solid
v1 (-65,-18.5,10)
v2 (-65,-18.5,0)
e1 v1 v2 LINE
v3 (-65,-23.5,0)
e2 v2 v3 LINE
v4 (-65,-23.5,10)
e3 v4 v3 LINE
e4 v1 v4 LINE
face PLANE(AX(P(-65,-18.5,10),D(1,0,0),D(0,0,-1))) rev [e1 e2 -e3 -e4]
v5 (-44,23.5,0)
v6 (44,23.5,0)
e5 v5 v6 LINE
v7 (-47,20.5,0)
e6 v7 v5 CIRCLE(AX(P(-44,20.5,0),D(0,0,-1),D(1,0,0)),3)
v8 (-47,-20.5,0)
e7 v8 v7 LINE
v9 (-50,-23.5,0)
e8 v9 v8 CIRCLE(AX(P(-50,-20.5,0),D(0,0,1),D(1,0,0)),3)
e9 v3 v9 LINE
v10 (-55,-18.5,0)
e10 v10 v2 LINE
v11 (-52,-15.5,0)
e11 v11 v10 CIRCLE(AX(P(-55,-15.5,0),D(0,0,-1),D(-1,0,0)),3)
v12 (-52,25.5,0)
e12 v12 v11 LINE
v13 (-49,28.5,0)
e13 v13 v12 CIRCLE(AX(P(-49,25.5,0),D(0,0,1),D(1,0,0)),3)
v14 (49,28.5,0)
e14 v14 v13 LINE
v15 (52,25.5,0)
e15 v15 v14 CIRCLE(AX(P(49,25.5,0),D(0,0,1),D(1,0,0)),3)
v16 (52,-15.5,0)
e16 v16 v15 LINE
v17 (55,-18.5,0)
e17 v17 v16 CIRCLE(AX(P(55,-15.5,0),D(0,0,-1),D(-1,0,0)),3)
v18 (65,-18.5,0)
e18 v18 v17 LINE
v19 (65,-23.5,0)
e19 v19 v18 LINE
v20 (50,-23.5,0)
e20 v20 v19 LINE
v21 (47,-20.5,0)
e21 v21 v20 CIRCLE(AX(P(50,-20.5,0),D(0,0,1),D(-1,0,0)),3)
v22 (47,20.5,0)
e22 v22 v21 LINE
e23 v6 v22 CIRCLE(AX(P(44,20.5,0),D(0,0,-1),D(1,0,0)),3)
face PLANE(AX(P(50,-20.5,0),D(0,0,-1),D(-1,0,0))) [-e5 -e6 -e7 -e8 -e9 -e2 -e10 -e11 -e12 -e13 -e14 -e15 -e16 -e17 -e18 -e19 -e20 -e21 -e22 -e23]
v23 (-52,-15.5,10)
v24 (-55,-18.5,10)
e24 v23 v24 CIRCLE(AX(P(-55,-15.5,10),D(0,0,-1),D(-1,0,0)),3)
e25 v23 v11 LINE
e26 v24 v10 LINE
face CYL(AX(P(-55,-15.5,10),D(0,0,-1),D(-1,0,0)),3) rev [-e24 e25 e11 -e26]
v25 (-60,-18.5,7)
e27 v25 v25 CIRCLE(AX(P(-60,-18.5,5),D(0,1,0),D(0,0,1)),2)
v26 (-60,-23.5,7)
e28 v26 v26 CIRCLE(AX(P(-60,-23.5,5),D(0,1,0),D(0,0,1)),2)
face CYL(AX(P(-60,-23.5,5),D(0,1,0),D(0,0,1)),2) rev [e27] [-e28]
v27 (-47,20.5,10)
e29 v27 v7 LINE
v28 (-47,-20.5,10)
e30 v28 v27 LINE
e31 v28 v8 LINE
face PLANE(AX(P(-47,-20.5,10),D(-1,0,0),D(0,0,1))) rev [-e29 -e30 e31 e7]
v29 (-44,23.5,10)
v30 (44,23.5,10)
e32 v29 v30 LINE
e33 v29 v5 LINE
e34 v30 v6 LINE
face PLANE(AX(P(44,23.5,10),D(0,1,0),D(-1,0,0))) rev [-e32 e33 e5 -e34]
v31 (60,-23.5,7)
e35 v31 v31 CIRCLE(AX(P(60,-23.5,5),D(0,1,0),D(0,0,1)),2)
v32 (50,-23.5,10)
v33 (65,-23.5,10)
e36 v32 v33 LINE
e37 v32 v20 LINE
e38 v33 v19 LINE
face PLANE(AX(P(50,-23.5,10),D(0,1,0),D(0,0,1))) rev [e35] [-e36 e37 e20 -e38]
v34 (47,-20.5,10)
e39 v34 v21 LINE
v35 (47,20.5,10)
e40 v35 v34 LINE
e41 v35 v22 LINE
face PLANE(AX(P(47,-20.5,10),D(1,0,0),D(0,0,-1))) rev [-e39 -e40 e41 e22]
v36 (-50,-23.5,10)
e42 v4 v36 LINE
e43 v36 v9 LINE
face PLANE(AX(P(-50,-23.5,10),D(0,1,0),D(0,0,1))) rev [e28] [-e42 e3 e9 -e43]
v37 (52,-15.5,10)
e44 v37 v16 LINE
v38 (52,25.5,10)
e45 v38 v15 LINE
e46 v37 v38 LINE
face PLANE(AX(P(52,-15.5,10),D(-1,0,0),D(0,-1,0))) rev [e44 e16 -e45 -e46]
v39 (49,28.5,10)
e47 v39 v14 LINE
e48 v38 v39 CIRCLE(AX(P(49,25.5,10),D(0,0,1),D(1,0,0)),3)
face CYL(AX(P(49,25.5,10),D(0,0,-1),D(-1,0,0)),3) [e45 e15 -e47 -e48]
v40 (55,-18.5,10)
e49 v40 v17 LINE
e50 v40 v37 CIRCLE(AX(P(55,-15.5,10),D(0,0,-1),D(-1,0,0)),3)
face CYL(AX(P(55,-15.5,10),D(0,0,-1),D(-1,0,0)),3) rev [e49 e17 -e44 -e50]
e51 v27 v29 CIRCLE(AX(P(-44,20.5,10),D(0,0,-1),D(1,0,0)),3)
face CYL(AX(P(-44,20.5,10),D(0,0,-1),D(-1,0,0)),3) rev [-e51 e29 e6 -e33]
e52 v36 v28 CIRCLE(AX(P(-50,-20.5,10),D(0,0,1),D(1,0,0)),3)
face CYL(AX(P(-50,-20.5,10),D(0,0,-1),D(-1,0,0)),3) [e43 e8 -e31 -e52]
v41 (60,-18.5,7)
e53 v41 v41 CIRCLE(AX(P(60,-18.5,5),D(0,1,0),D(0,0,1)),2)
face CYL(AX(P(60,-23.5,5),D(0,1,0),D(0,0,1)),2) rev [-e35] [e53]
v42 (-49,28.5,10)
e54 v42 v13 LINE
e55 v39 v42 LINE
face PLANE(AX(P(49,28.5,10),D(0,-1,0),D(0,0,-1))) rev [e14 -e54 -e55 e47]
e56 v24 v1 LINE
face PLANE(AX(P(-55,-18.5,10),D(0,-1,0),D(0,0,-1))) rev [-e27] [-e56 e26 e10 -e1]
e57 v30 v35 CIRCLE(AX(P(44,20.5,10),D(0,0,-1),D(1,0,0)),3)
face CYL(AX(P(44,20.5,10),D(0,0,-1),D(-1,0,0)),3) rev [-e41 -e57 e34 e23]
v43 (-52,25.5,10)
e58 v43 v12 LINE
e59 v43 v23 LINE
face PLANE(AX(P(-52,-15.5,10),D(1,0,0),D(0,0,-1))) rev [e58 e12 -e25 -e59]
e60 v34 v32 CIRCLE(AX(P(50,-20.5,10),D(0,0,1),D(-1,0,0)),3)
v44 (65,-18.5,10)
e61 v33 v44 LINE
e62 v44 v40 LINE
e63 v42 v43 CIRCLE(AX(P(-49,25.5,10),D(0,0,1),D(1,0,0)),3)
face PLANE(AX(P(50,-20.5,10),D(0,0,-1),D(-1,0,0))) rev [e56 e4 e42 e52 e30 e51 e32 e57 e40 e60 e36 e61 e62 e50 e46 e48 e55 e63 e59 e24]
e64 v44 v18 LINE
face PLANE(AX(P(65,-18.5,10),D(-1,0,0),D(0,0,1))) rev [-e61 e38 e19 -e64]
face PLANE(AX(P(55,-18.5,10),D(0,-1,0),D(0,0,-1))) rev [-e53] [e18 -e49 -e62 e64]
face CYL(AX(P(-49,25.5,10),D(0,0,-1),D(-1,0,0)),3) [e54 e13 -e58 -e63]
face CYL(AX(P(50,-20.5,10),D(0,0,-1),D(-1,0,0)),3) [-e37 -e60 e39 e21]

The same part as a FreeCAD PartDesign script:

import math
import FreeCAD as App
import Part
import Sketcher
from FreeCAD import Vector
Q = App.Units.Quantity

doc = App.newDocument("Part")
params = doc.addObject("Spreadsheet::Sheet", "Params")
for row, (alias, value) in enumerate([
    ("sketch1_radius", "3 mm"),
    ("sketch1_width", "98 mm"),
    ("sketch1_width2", "10 mm"),
    ("sketch1_width3", "15 mm"),
    ("sketch1_height", "41 mm"),
    ("pad1_length", "10 mm"),
    ("sketch2_diameter", "4 mm"),
], start=1):
    params.set(f"A{row}", alias)
    params.set(f"B{row}", "=" + value)
    params.setAlias(f"B{row}", alias)

body = doc.addObject("PartDesign::Body", "Body")

# Sketch on XY plane
sketch1 = body.newObject("Sketcher::SketchObject", "Sketch")
sketch1.AttachmentSupport = (doc.getObject("XY_Plane"), [""])
sketch1.MapMode = "FlatFace"
sketch1.addGeometry([
    Part.LineSegment(Vector(52, -15.5, 0), Vector(52, 25.5, 0)),  # 0
    Part.ArcOfCircle(Part.Circle(Vector(49, 25.5, 0), Vector(0, 0, 1), 3), math.radians(0), math.radians(90)),  # 1
    Part.LineSegment(Vector(49, 28.5, 0), Vector(-49, 28.5, 0)),  # 2
    Part.ArcOfCircle(Part.Circle(Vector(-49, 25.5, 0), Vector(0, 0, 1), 3), math.radians(90), math.radians(180)),  # 3
    Part.LineSegment(Vector(-52, 25.5, 0), Vector(-52, -15.5, 0)),  # 4
    Part.ArcOfCircle(Part.Circle(Vector(-55, -15.5, 0), Vector(0, 0, 1), 3), math.radians(-90), math.radians(0)),  # 5
    Part.LineSegment(Vector(-55, -18.5, 0), Vector(-65, -18.5, 0)),  # 6
    Part.LineSegment(Vector(-65, -18.5, 0), Vector(-65, -23.5, 0)),  # 7
    Part.LineSegment(Vector(-65, -23.5, 0), Vector(-50, -23.5, 0)),  # 8
    Part.ArcOfCircle(Part.Circle(Vector(-50, -20.5, 0), Vector(0, 0, 1), 3), math.radians(-90), math.radians(0)),  # 9
    Part.LineSegment(Vector(-47, -20.5, 0), Vector(-47, 20.5, 0)),  # 10
    Part.ArcOfCircle(Part.Circle(Vector(-44, 20.5, 0), Vector(0, 0, 1), 3), math.radians(90), math.radians(180)),  # 11
    Part.LineSegment(Vector(-44, 23.5, 0), Vector(44, 23.5, 0)),  # 12
    Part.ArcOfCircle(Part.Circle(Vector(44, 20.5, 0), Vector(0, 0, 1), 3), math.radians(0), math.radians(90)),  # 13
    Part.LineSegment(Vector(47, 20.5, 0), Vector(47, -20.5, 0)),  # 14
    Part.ArcOfCircle(Part.Circle(Vector(50, -20.5, 0), Vector(0, 0, 1), 3), math.radians(180), math.radians(270)),  # 15
    Part.LineSegment(Vector(50, -23.5, 0), Vector(65, -23.5, 0)),  # 16
    Part.LineSegment(Vector(65, -23.5, 0), Vector(65, -18.5, 0)),  # 17
    Part.LineSegment(Vector(65, -18.5, 0), Vector(55, -18.5, 0)),  # 18
    Part.ArcOfCircle(Part.Circle(Vector(55, -15.5, 0), Vector(0, 0, 1), 3), math.radians(180), math.radians(270)),  # 19
], False)
sketch1.addConstraint([
    Sketcher.Constraint("Tangent", 0, 2, 1, 1),
    Sketcher.Constraint("Tangent", 1, 2, 2, 1),
    Sketcher.Constraint("Tangent", 2, 2, 3, 1),
    Sketcher.Constraint("Tangent", 3, 2, 4, 1),
    Sketcher.Constraint("Tangent", 4, 2, 5, 2),
    Sketcher.Constraint("Tangent", 5, 1, 6, 1),
    Sketcher.Constraint("Coincident", 6, 2, 7, 1),
    Sketcher.Constraint("Coincident", 7, 2, 8, 1),
    Sketcher.Constraint("Tangent", 8, 2, 9, 1),
    Sketcher.Constraint("Tangent", 9, 2, 10, 1),
    Sketcher.Constraint("Tangent", 10, 2, 11, 2),
    Sketcher.Constraint("Tangent", 11, 1, 12, 1),
    Sketcher.Constraint("Tangent", 12, 2, 13, 2),
    Sketcher.Constraint("Tangent", 13, 1, 14, 1),
    Sketcher.Constraint("Tangent", 14, 2, 15, 1),
    Sketcher.Constraint("Tangent", 15, 2, 16, 1),
    Sketcher.Constraint("Coincident", 16, 2, 17, 1),
    Sketcher.Constraint("Coincident", 17, 2, 18, 1),
    Sketcher.Constraint("Tangent", 18, 2, 19, 2),
    Sketcher.Constraint("Tangent", 19, 1, 0, 1),
    Sketcher.Constraint("Vertical", 0),
    Sketcher.Constraint("Horizontal", 2),
    Sketcher.Constraint("Vertical", 4),
    Sketcher.Constraint("Horizontal", 6),
    Sketcher.Constraint("Vertical", 7),
    Sketcher.Constraint("Horizontal", 8),
    Sketcher.Constraint("Vertical", 10),
    Sketcher.Constraint("Horizontal", 12),
    Sketcher.Constraint("Vertical", 14),
    Sketcher.Constraint("Horizontal", 16),
    Sketcher.Constraint("Vertical", 17),
    Sketcher.Constraint("Horizontal", 18),
    Sketcher.Constraint("Equal", 1, 3),
    Sketcher.Constraint("Equal", 3, 5),
    Sketcher.Constraint("Equal", 5, 9),
    Sketcher.Constraint("Equal", 9, 11),
    Sketcher.Constraint("Equal", 11, 13),
    Sketcher.Constraint("Equal", 13, 15),
    Sketcher.Constraint("Equal", 15, 19),
    Sketcher.Constraint("Symmetric", 9, 2, 13, 1, -1, 1),
    Sketcher.Constraint("Symmetric", 5, 3, 19, 3, -2),
    Sketcher.Constraint("Symmetric", 7, 2, 16, 2, -2),
    Sketcher.Constraint("Equal", 4, 10),
    Sketcher.Constraint("Radius", 1, Q("3 mm")),
    Sketcher.Constraint("DistanceX", 2, 2, 2, 1, Q("98 mm")),
    Sketcher.Constraint("DistanceX", 6, 2, 6, 1, Q("10 mm")),
    Sketcher.Constraint("DistanceX", 8, 1, 8, 2, Q("15 mm")),
    Sketcher.Constraint("DistanceY", 0, 1, 0, 2, Q("41 mm")),
    Sketcher.Constraint("DistanceY", 7, 2, 7, 1, Q("5 mm")),
])
sketch1.setExpression("Constraints[43]", "Params.sketch1_radius")
sketch1.setExpression("Constraints[44]", "Params.sketch1_width")
sketch1.setExpression("Constraints[45]", "Params.sketch1_width2")
sketch1.setExpression("Constraints[46]", "Params.sketch1_width3")
sketch1.setExpression("Constraints[47]", "Params.sketch1_height")
pad1 = body.newObject("PartDesign::Pad", "Pad")
pad1.Profile = sketch1
pad1.setExpression("Length", "Params.pad1_length")

# Sketch on XZ plane
sketch2 = body.newObject("Sketcher::SketchObject", "Sketch001")
sketch2.AttachmentSupport = (doc.getObject("XZ_Plane"), [""])
sketch2.MapMode = "FlatFace"
sketch2.AttachmentOffset = App.Placement(Vector(0, 0, 18.5), App.Rotation())
sketch2.addGeometry([
    Part.Circle(Vector(-60, 5, 0), Vector(0, 0, 1), 2),
    Part.Circle(Vector(60, 5, 0), Vector(0, 0, 1), 2),
], False)
sketch2.addConstraint([
    Sketcher.Constraint("Equal", 0, 1),
    Sketcher.Constraint("Symmetric", 0, 3, 1, 3, -2),
    Sketcher.Constraint("Diameter", 0, Q("4 mm")),
    Sketcher.Constraint("DistanceX", 0, 3, -1, 1, Q("60 mm")),
    Sketcher.Constraint("DistanceY", -1, 1, 0, 3, Q("5 mm")),
])
sketch2.setExpression("Constraints[2]", "Params.sketch2_diameter")
pocket1 = body.newObject("PartDesign::Pocket", "Pocket")
pocket1.Profile = sketch2
pocket1.Type = "ThroughAll"
pocket1.Reversed = True

doc.recompute()
